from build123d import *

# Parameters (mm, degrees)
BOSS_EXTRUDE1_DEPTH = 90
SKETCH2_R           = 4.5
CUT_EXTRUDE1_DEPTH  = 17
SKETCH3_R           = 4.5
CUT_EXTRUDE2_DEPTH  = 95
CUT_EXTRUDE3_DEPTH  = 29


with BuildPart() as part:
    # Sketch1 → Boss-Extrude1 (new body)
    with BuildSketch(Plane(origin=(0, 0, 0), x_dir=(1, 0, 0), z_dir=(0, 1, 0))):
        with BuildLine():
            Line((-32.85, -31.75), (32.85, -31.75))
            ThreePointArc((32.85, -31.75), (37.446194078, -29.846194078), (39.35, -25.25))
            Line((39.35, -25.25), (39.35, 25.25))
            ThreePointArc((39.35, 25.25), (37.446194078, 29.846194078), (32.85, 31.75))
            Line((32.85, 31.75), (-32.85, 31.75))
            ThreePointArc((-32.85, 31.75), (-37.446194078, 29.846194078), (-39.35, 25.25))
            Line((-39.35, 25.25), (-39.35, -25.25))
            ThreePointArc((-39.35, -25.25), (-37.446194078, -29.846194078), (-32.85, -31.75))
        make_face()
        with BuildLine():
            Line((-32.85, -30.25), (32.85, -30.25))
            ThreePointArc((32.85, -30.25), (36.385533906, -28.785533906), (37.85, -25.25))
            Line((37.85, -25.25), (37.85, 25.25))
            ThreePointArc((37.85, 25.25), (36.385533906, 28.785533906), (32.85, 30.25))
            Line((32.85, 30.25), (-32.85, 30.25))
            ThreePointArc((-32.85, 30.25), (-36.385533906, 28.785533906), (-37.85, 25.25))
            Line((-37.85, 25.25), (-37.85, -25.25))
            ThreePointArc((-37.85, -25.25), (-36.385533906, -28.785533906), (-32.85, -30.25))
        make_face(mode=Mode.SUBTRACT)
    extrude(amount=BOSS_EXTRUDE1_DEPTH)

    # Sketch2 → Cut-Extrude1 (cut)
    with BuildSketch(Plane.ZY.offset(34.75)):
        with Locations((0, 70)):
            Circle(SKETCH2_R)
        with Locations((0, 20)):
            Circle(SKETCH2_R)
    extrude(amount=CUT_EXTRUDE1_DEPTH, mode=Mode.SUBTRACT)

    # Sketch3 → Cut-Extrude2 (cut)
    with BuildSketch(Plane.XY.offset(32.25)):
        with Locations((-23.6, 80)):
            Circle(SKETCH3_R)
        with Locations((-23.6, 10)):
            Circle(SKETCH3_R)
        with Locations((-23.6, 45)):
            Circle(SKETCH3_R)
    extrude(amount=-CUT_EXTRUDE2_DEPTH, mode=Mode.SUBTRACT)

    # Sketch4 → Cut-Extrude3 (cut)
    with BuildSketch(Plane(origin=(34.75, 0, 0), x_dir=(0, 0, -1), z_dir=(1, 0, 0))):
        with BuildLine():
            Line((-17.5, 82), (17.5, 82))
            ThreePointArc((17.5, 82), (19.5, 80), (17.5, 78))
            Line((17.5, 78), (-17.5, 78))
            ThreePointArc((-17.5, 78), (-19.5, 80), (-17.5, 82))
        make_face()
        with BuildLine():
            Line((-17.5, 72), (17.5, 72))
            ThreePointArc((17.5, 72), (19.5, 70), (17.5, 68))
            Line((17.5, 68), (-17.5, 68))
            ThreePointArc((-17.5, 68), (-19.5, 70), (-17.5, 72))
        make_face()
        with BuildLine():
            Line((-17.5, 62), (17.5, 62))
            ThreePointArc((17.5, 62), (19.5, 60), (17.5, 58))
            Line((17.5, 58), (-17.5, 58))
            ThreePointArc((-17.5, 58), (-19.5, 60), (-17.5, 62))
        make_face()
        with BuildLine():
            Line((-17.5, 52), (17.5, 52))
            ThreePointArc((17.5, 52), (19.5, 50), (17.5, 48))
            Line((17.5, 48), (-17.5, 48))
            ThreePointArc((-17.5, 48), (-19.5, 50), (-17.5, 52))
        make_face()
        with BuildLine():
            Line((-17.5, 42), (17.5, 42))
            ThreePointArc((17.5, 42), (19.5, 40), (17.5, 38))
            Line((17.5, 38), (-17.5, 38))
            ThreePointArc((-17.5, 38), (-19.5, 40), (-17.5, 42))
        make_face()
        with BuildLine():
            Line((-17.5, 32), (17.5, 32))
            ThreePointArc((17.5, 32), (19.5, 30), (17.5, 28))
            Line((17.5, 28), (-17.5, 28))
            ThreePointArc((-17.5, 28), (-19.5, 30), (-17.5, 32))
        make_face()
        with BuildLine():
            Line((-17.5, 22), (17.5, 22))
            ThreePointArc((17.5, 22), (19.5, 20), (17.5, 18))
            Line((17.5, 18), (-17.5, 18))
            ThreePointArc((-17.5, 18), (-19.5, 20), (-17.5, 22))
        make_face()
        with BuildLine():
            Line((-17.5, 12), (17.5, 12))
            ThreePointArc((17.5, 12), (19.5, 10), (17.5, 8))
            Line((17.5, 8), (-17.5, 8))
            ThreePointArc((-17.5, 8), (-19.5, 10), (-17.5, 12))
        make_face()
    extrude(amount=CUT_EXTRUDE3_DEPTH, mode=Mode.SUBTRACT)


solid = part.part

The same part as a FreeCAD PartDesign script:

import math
import FreeCAD as App
import Part
import Sketcher

doc = App.newDocument("Part")
body = doc.addObject("PartDesign::Body", "Body")

# Sketch on XZ plane
sketch1 = body.newObject("Sketcher::SketchObject", "Sketch")
sketch1.AttachmentSupport = (doc.getObject("XZ_Plane"), [""])
sketch1.MapMode = "FlatFace"
sketch1.addGeometry([
    Part.LineSegment(App.Vector(-33, 32, 0), App.Vector(33, 32, 0)),  # 0
    Part.ArcOfCircle(Part.Circle(App.Vector(33, 25, 0), App.Vector(0, 0, 1), 6), math.radians(0), math.radians(90)),  # 1
    Part.LineSegment(App.Vector(39, 25, 0), App.Vector(39, -25, 0)),  # 2
    Part.ArcOfCircle(Part.Circle(App.Vector(33, -25, 0), App.Vector(0, 0, 1), 6), math.radians(-90), math.radians(0)),  # 3
    Part.LineSegment(App.Vector(33, -32, 0), App.Vector(-33, -32, 0)),  # 4
    Part.ArcOfCircle(Part.Circle(App.Vector(-33, -25, 0), App.Vector(0, 0, 1), 6), math.radians(180), math.radians(270)),  # 5
    Part.LineSegment(App.Vector(-39, -25, 0), App.Vector(-39, 25, 0)),  # 6
    Part.ArcOfCircle(Part.Circle(App.Vector(-33, 25, 0), App.Vector(0, 0, 1), 6), math.radians(90), math.radians(180)),  # 7
    Part.LineSegment(App.Vector(33, 30, 0), App.Vector(-33, 30, 0)),  # 8
    Part.ArcOfCircle(Part.Circle(App.Vector(-33, 25, 0), App.Vector(0, 0, 1), 5), math.radians(90), math.radians(180)),  # 9
    Part.LineSegment(App.Vector(-38, 25, 0), App.Vector(-38, -25, 0)),  # 10
    Part.ArcOfCircle(Part.Circle(App.Vector(-33, -25, 0), App.Vector(0, 0, 1), 5), math.radians(180), math.radians(270)),  # 11
    Part.LineSegment(App.Vector(-33, -30, 0), App.Vector(33, -30, 0)),  # 12
    Part.ArcOfCircle(Part.Circle(App.Vector(33, -25, 0), App.Vector(0, 0, 1), 5), math.radians(-90), math.radians(0)),  # 13
    Part.LineSegment(App.Vector(38, -25, 0), App.Vector(38, 25, 0)),  # 14
    Part.ArcOfCircle(Part.Circle(App.Vector(33, 25, 0), App.Vector(0, 0, 1), 5), math.radians(0), math.radians(90)),  # 15
], False)
sketch1.addConstraint([
    Sketcher.Constraint("Tangent", 0, 2, 1, 2),
    Sketcher.Constraint("Tangent", 1, 1, 2, 1),
    Sketcher.Constraint("Tangent", 2, 2, 3, 2),
    Sketcher.Constraint("Tangent", 3, 1, 4, 1),
    Sketcher.Constraint("Tangent", 4, 2, 5, 2),
    Sketcher.Constraint("Tangent", 5, 1, 6, 1),
    Sketcher.Constraint("Tangent", 6, 2, 7, 2),
    Sketcher.Constraint("Tangent", 7, 1, 0, 1),
    Sketcher.Constraint("Tangent", 8, 2, 9, 1),
    Sketcher.Constraint("Tangent", 9, 2, 10, 1),
    Sketcher.Constraint("Tangent", 10, 2, 11, 1),
    Sketcher.Constraint("Tangent", 11, 2, 12, 1),
    Sketcher.Constraint("Tangent", 12, 2, 13, 1),
    Sketcher.Constraint("Tangent", 13, 2, 14, 1),
    Sketcher.Constraint("Tangent", 14, 2, 15, 1),
    Sketcher.Constraint("Tangent", 15, 2, 8, 1),
    Sketcher.Constraint("Horizontal", 0),
    Sketcher.Constraint("Vertical", 2),
    Sketcher.Constraint("Horizontal", 4),
    Sketcher.Constraint("Vertical", 6),
    Sketcher.Constraint("Horizontal", 8),
    Sketcher.Constraint("Vertical", 10),
    Sketcher.Constraint("Horizontal", 12),
    Sketcher.Constraint("Vertical", 14),
    Sketcher.Constraint("Coincident", 9, 3, 7, 3),
    Sketcher.Constraint("Coincident", 11, 3, 5, 3),
    Sketcher.Constraint("Coincident", 13, 3, 3, 3),
    Sketcher.Constraint("Equal", 1, 3),
    Sketcher.Constraint("Equal", 3, 5),
    Sketcher.Constraint("Equal", 5, 7),
    Sketcher.Constraint("Equal", 13, 15),
    Sketcher.Constraint("Symmetric", 1, 3, 5, 3, -1, 1),
    Sketcher.Constraint("Radius", 9, 5.0),
    Sketcher.Constraint("Radius", 1, 6.5),
    Sketcher.Constraint("DistanceX", 0, 1, 0, 2, 65.7),
    Sketcher.Constraint("DistanceY", 2, 2, 2, 1, 50.5),
])
pad1 = body.newObject("PartDesign::Pad", "Pad")
pad1.Profile = sketch1
pad1.Length = 90
pad1.Reversed = True

# Sketch on YZ plane
sketch2 = body.newObject("Sketcher::SketchObject", "Sketch001")
sketch2.AttachmentSupport = (doc.getObject("YZ_Plane"), [""])
sketch2.MapMode = "FlatFace"
sketch2.AttachmentOffset = App.Placement(App.Vector(0, 0, -34.75), App.Rotation())
sketch2.addGeometry([
    Part.Circle(App.Vector(70, 0, 0), App.Vector(0, 0, 1), 4.5),
    Part.Circle(App.Vector(20, 0, 0), App.Vector(0, 0, 1), 4.5),
], False)
sketch2.addConstraint([
    Sketcher.Constraint("Equal", 0, 1),
    Sketcher.Constraint("PointOnObject", 0, 3, -1),
    Sketcher.Constraint("PointOnObject", 1, 3, -1),
    Sketcher.Constraint("Diameter", 0, 9.0),
    Sketcher.Constraint("DistanceX", -1, 1, 0, 3, 70.0),
    Sketcher.Constraint("DistanceX", -1, 1, 1, 3, 20.0),
])
pocket1 = body.newObject("PartDesign::Pocket", "Pocket")
pocket1.Profile = sketch2
pocket1.Length = 17

# Sketch on XY plane
sketch3 = body.newObject("Sketcher::SketchObject", "Sketch002")
sketch3.AttachmentSupport = (doc.getObject("XY_Plane"), [""])
sketch3.MapMode = "FlatFace"
sketch3.AttachmentOffset = App.Placement(App.Vector(0, 0, 32.25), App.Rotation())
sketch3.addGeometry([
    Part.Circle(App.Vector(-23.6, 80, 0), App.Vector(0, 0, 1), 4.5),
    Part.Circle(App.Vector(-23.6, 10, 0), App.Vector(0, 0, 1), 4.5),
    Part.Circle(App.Vector(-23.6, 45, 0), App.Vector(0, 0, 1), 4.5),
], False)
sketch3.addConstraint([
    Sketcher.Constraint("Equal", 0, 1),
    Sketcher.Constraint("Equal", 1, 2),
    Sketcher.Constraint("Vertical", 0, 3, 1, 3),
    Sketcher.Constraint("Vertical", 1, 3, 2, 3),
    Sketcher.Constraint("Diameter", 0, 9.0),
    Sketcher.Constraint("DistanceY", -1, 1, 0, 3, 80.0),
    Sketcher.Constraint("DistanceY", -1, 1, 1, 3, 10.0),
    Sketcher.Constraint("DistanceY", -1, 1, 2, 3, 45.0),
    Sketcher.Constraint("DistanceX", 0, 3, -1, 1, 23.6),
])
pocket2 = body.newObject("PartDesign::Pocket", "Pocket001")
pocket2.Profile = sketch3
pocket2.Length = 95

# Sketch on YZ plane
sketch4 = body.newObject("Sketcher::SketchObject", "Sketch003")
sketch4.AttachmentSupport = (doc.getObject("YZ_Plane"), [""])
sketch4.MapMode = "FlatFace"
sketch4.AttachmentOffset = App.Placement(App.Vector(0, 0, 34.75), App.Rotation())
sketch4.addGeometry([
    Part.LineSegment(App.Vector(82, -17.5, 0), App.Vector(82, 17.5, 0)),  # 0
    Part.ArcOfCircle(Part.Circle(App.Vector(80, 17.5, 0), App.Vector(0, 0, 1), 2), math.radians(0), math.radians(180)),  # 1
    Part.LineSegment(App.Vector(78, 17.5, 0), App.Vector(78, -17.5, 0)),  # 2
    Part.ArcOfCircle(Part.Circle(App.Vector(80, -17.5, 0), App.Vector(0, 0, 1), 2), math.radians(180), math.radians(360)),  # 3
    Part.LineSegment(App.Vector(72, -17.5, 0), App.Vector(72, 17.5, 0)),  # 4
    Part.ArcOfCircle(Part.Circle(App.Vector(70, 17.5, 0), App.Vector(0, 0, 1), 2), math.radians(0), math.radians(180)),  # 5
    Part.LineSegment(App.Vector(68, 17.5, 0), App.Vector(68, -17.5, 0)),  # 6
    Part.ArcOfCircle(Part.Circle(App.Vector(70, -17.5, 0), App.Vector(0, 0, 1), 2), math.radians(180), math.radians(360)),  # 7
    Part.LineSegment(App.Vector(62, -17.5, 0), App.Vector(62, 17.5, 0)),  # 8
    Part.ArcOfCircle(Part.Circle(App.Vector(60, 17.5, 0), App.Vector(0, 0, 1), 2), math.radians(0), math.radians(180)),  # 9
    Part.LineSegment(App.Vector(58, 17.5, 0), App.Vector(58, -17.5, 0)),  # 10
    Part.ArcOfCircle(Part.Circle(App.Vector(60, -17.5, 0), App.Vector(0, 0, 1), 2), math.radians(180), math.radians(360)),  # 11
    Part.LineSegment(App.Vector(52, -17.5, 0), App.Vector(52, 17.5, 0)),  # 12
    Part.ArcOfCircle(Part.Circle(App.Vector(50, 17.5, 0), App.Vector(0, 0, 1), 2), math.radians(0), math.radians(180)),  # 13
    Part.LineSegment(App.Vector(48, 17.5, 0), App.Vector(48, -17.5, 0)),  # 14
    Part.ArcOfCircle(Part.Circle(App.Vector(50, -17.5, 0), App.Vector(0, 0, 1), 2), math.radians(180), math.radians(360)),  # 15
    Part.LineSegment(App.Vector(42, -17.5, 0), App.Vector(42, 17.5, 0)),  # 16
    Part.ArcOfCircle(Part.Circle(App.Vector(40, 17.5, 0), App.Vector(0, 0, 1), 2), math.radians(0), math.radians(180)),  # 17
    Part.LineSegment(App.Vector(38, 17.5, 0), App.Vector(38, -17.5, 0)),  # 18
    Part.ArcOfCircle(Part.Circle(App.Vector(40, -17.5, 0), App.Vector(0, 0, 1), 2), math.radians(180), math.radians(360)),  # 19
    Part.LineSegment(App.Vector(32, -17.5, 0), App.Vector(32, 17.5, 0)),  # 20
    Part.ArcOfCircle(Part.Circle(App.Vector(30, 17.5, 0), App.Vector(0, 0, 1), 2), math.radians(0), math.radians(180)),  # 21
    Part.LineSegment(App.Vector(28, 17.5, 0), App.Vector(28, -17.5, 0)),  # 22
    Part.ArcOfCircle(Part.Circle(App.Vector(30, -17.5, 0), App.Vector(0, 0, 1), 2), math.radians(180), math.radians(360)),  # 23
    Part.LineSegment(App.Vector(22, -17.5, 0), App.Vector(22, 17.5, 0)),  # 24
    Part.ArcOfCircle(Part.Circle(App.Vector(20, 17.5, 0), App.Vector(0, 0, 1), 2), math.radians(0), math.radians(180)),  # 25
    Part.LineSegment(App.Vector(18, 17.5, 0), App.Vector(18, -17.5, 0)),  # 26
    Part.ArcOfCircle(Part.Circle(App.Vector(20, -17.5, 0), App.Vector(0, 0, 1), 2), math.radians(180), math.radians(360)),  # 27
    Part.LineSegment(App.Vector(12, -17.5, 0), App.Vector(12, 17.5, 0)),  # 28
    Part.ArcOfCircle(Part.Circle(App.Vector(10, 17.5, 0), App.Vector(0, 0, 1), 2), math.radians(0), math.radians(180)),  # 29
    Part.LineSegment(App.Vector(8, 17.5, 0), App.Vector(8, -17.5, 0)),  # 30
    Part.ArcOfCircle(Part.Circle(App.Vector(10, -17.5, 0), App.Vector(0, 0, 1), 2), math.radians(180), math.radians(360)),  # 31
], False)
sketch4.addConstraint([
    Sketcher.Constraint("Tangent", 0, 2, 1, 1),
    Sketcher.Constraint("Tangent", 1, 2, 2, 1),
    Sketcher.Constraint("Tangent", 2, 2, 3, 1),
    Sketcher.Constraint("Tangent", 3, 2, 0, 1),
    Sketcher.Constraint("Tangent", 4, 2, 5, 1),
    Sketcher.Constraint("Tangent", 5, 2, 6, 1),
    Sketcher.Constraint("Tangent", 6, 2, 7, 1),
    Sketcher.Constraint("Tangent", 7, 2, 4, 1),
    Sketcher.Constraint("Tangent", 8, 2, 9, 1),
    Sketcher.Constraint("Tangent", 9, 2, 10, 1),
    Sketcher.Constraint("Tangent", 10, 2, 11, 1),
    Sketcher.Constraint("Tangent", 11, 2, 8, 1),
    Sketcher.Constraint("Tangent", 12, 2, 13, 1),
    Sketcher.Constraint("Tangent", 13, 2, 14, 1),
    Sketcher.Constraint("Tangent", 14, 2, 15, 1),
    Sketcher.Constraint("Tangent", 15, 2, 12, 1),
    Sketcher.Constraint("Tangent", 16, 2, 17, 1),
    Sketcher.Constraint("Tangent", 17, 2, 18, 1),
    Sketcher.Constraint("Tangent", 18, 2, 19, 1),
    Sketcher.Constraint("Tangent", 19, 2, 16, 1),
    Sketcher.Constraint("Tangent", 20, 2, 21, 1),
    Sketcher.Constraint("Tangent", 21, 2, 22, 1),
    Sketcher.Constraint("Tangent", 22, 2, 23, 1),
    Sketcher.Constraint("Tangent", 23, 2, 20, 1),
    Sketcher.Constraint("Tangent", 24, 2, 25, 1),
    Sketcher.Constraint("Tangent", 25, 2, 26, 1),
    Sketcher.Constraint("Tangent", 26, 2, 27, 1),
    Sketcher.Constraint("Tangent", 27, 2, 24, 1),
    Sketcher.Constraint("Tangent", 28, 2, 29, 1),
    Sketcher.Constraint("Tangent", 29, 2, 30, 1),
    Sketcher.Constraint("Tangent", 30, 2, 31, 1),
    Sketcher.Constraint("Tangent", 31, 2, 28, 1),
    Sketcher.Constraint("Vertical", 0),
    Sketcher.Constraint("Vertical", 2),
    Sketcher.Constraint("Vertical", 4),
    Sketcher.Constraint("Vertical", 6),
    Sketcher.Constraint("Vertical", 8),
    Sketcher.Constraint("Vertical", 10),
    Sketcher.Constraint("Vertical", 12),
    Sketcher.Constraint("Vertical", 14),
    Sketcher.Constraint("Vertical", 16),
    Sketcher.Constraint("Vertical", 18),
    Sketcher.Constraint("Vertical", 20),
    Sketcher.Constraint("Vertical", 22),
    Sketcher.Constraint("Vertical", 24),
    Sketcher.Constraint("Vertical", 26),
    Sketcher.Constraint("Vertical", 28),
    Sketcher.Constraint("Vertical", 30),
    Sketcher.Constraint("Equal", 3, 5),
    Sketcher.Constraint("Equal", 7, 9),
    Sketcher.Constraint("Equal", 11, 13),
    Sketcher.Constraint("Equal", 15, 17),
    Sketcher.Constraint("Equal", 19, 21),
    Sketcher.Constraint("Equal", 23, 25),
    Sketcher.Constraint("Equal", 27, 29),
    Sketcher.Constraint("Horizontal", 1, 3, 5, 3),
    Sketcher.Constraint("Horizontal", 3, 3, 7, 3),
    Sketcher.Constraint("Horizontal", 5, 3, 9, 3),
    Sketcher.Constraint("Horizontal", 7, 3, 11, 3),
    Sketcher.Constraint("Horizontal", 9, 3, 13, 3),
    Sketcher.Constraint("Horizontal", 11, 3, 15, 3),
    Sketcher.Constraint("Horizontal", 13, 3, 17, 3),
    Sketcher.Constraint("Horizontal", 15, 3, 19, 3),
    Sketcher.Constraint("Horizontal", 17, 3, 21, 3),
    Sketcher.Constraint("Horizontal", 19, 3, 23, 3),
    Sketcher.Constraint("Horizontal", 21, 3, 25, 3),
    Sketcher.Constraint("Horizontal", 23, 3, 27, 3),
    Sketcher.Constraint("Horizontal", 25, 3, 29, 3),
    Sketcher.Constraint("Horizontal", 27, 3, 31, 3),
    Sketcher.Constraint("Radius", 1, 2.0),
    Sketcher.Constraint("DistanceY", 0, 1, 0, 2, 35.0),
    Sketcher.Constraint("DistanceX", -1, 1, 1, 3, 80.0),
    Sketcher.Constraint("DistanceX", -1, 1, 5, 3, 70.0),
    Sketcher.Constraint("DistanceX", -1, 1, 9, 3, 60.0),
    Sketcher.Constraint("DistanceX", -1, 1, 13, 3, 50.0),
    Sketcher.Constraint("DistanceX", -1, 1, 17, 3, 40.0),
    Sketcher.Constraint("DistanceX", -1, 1, 21, 3, 30.0),
    Sketcher.Constraint("DistanceX", -1, 1, 25, 3, 20.0),
    Sketcher.Constraint("DistanceX", -1, 1, 29, 3, 10.0),
    Sketcher.Constraint("DistanceY", -1, 1, 1, 3, 17.5),
])
pocket3 = body.newObject("PartDesign::Pocket", "Pocket002")
pocket3.Profile = sketch4
pocket3.Length = 29
pocket3.Reversed = True

doc.recompute()
